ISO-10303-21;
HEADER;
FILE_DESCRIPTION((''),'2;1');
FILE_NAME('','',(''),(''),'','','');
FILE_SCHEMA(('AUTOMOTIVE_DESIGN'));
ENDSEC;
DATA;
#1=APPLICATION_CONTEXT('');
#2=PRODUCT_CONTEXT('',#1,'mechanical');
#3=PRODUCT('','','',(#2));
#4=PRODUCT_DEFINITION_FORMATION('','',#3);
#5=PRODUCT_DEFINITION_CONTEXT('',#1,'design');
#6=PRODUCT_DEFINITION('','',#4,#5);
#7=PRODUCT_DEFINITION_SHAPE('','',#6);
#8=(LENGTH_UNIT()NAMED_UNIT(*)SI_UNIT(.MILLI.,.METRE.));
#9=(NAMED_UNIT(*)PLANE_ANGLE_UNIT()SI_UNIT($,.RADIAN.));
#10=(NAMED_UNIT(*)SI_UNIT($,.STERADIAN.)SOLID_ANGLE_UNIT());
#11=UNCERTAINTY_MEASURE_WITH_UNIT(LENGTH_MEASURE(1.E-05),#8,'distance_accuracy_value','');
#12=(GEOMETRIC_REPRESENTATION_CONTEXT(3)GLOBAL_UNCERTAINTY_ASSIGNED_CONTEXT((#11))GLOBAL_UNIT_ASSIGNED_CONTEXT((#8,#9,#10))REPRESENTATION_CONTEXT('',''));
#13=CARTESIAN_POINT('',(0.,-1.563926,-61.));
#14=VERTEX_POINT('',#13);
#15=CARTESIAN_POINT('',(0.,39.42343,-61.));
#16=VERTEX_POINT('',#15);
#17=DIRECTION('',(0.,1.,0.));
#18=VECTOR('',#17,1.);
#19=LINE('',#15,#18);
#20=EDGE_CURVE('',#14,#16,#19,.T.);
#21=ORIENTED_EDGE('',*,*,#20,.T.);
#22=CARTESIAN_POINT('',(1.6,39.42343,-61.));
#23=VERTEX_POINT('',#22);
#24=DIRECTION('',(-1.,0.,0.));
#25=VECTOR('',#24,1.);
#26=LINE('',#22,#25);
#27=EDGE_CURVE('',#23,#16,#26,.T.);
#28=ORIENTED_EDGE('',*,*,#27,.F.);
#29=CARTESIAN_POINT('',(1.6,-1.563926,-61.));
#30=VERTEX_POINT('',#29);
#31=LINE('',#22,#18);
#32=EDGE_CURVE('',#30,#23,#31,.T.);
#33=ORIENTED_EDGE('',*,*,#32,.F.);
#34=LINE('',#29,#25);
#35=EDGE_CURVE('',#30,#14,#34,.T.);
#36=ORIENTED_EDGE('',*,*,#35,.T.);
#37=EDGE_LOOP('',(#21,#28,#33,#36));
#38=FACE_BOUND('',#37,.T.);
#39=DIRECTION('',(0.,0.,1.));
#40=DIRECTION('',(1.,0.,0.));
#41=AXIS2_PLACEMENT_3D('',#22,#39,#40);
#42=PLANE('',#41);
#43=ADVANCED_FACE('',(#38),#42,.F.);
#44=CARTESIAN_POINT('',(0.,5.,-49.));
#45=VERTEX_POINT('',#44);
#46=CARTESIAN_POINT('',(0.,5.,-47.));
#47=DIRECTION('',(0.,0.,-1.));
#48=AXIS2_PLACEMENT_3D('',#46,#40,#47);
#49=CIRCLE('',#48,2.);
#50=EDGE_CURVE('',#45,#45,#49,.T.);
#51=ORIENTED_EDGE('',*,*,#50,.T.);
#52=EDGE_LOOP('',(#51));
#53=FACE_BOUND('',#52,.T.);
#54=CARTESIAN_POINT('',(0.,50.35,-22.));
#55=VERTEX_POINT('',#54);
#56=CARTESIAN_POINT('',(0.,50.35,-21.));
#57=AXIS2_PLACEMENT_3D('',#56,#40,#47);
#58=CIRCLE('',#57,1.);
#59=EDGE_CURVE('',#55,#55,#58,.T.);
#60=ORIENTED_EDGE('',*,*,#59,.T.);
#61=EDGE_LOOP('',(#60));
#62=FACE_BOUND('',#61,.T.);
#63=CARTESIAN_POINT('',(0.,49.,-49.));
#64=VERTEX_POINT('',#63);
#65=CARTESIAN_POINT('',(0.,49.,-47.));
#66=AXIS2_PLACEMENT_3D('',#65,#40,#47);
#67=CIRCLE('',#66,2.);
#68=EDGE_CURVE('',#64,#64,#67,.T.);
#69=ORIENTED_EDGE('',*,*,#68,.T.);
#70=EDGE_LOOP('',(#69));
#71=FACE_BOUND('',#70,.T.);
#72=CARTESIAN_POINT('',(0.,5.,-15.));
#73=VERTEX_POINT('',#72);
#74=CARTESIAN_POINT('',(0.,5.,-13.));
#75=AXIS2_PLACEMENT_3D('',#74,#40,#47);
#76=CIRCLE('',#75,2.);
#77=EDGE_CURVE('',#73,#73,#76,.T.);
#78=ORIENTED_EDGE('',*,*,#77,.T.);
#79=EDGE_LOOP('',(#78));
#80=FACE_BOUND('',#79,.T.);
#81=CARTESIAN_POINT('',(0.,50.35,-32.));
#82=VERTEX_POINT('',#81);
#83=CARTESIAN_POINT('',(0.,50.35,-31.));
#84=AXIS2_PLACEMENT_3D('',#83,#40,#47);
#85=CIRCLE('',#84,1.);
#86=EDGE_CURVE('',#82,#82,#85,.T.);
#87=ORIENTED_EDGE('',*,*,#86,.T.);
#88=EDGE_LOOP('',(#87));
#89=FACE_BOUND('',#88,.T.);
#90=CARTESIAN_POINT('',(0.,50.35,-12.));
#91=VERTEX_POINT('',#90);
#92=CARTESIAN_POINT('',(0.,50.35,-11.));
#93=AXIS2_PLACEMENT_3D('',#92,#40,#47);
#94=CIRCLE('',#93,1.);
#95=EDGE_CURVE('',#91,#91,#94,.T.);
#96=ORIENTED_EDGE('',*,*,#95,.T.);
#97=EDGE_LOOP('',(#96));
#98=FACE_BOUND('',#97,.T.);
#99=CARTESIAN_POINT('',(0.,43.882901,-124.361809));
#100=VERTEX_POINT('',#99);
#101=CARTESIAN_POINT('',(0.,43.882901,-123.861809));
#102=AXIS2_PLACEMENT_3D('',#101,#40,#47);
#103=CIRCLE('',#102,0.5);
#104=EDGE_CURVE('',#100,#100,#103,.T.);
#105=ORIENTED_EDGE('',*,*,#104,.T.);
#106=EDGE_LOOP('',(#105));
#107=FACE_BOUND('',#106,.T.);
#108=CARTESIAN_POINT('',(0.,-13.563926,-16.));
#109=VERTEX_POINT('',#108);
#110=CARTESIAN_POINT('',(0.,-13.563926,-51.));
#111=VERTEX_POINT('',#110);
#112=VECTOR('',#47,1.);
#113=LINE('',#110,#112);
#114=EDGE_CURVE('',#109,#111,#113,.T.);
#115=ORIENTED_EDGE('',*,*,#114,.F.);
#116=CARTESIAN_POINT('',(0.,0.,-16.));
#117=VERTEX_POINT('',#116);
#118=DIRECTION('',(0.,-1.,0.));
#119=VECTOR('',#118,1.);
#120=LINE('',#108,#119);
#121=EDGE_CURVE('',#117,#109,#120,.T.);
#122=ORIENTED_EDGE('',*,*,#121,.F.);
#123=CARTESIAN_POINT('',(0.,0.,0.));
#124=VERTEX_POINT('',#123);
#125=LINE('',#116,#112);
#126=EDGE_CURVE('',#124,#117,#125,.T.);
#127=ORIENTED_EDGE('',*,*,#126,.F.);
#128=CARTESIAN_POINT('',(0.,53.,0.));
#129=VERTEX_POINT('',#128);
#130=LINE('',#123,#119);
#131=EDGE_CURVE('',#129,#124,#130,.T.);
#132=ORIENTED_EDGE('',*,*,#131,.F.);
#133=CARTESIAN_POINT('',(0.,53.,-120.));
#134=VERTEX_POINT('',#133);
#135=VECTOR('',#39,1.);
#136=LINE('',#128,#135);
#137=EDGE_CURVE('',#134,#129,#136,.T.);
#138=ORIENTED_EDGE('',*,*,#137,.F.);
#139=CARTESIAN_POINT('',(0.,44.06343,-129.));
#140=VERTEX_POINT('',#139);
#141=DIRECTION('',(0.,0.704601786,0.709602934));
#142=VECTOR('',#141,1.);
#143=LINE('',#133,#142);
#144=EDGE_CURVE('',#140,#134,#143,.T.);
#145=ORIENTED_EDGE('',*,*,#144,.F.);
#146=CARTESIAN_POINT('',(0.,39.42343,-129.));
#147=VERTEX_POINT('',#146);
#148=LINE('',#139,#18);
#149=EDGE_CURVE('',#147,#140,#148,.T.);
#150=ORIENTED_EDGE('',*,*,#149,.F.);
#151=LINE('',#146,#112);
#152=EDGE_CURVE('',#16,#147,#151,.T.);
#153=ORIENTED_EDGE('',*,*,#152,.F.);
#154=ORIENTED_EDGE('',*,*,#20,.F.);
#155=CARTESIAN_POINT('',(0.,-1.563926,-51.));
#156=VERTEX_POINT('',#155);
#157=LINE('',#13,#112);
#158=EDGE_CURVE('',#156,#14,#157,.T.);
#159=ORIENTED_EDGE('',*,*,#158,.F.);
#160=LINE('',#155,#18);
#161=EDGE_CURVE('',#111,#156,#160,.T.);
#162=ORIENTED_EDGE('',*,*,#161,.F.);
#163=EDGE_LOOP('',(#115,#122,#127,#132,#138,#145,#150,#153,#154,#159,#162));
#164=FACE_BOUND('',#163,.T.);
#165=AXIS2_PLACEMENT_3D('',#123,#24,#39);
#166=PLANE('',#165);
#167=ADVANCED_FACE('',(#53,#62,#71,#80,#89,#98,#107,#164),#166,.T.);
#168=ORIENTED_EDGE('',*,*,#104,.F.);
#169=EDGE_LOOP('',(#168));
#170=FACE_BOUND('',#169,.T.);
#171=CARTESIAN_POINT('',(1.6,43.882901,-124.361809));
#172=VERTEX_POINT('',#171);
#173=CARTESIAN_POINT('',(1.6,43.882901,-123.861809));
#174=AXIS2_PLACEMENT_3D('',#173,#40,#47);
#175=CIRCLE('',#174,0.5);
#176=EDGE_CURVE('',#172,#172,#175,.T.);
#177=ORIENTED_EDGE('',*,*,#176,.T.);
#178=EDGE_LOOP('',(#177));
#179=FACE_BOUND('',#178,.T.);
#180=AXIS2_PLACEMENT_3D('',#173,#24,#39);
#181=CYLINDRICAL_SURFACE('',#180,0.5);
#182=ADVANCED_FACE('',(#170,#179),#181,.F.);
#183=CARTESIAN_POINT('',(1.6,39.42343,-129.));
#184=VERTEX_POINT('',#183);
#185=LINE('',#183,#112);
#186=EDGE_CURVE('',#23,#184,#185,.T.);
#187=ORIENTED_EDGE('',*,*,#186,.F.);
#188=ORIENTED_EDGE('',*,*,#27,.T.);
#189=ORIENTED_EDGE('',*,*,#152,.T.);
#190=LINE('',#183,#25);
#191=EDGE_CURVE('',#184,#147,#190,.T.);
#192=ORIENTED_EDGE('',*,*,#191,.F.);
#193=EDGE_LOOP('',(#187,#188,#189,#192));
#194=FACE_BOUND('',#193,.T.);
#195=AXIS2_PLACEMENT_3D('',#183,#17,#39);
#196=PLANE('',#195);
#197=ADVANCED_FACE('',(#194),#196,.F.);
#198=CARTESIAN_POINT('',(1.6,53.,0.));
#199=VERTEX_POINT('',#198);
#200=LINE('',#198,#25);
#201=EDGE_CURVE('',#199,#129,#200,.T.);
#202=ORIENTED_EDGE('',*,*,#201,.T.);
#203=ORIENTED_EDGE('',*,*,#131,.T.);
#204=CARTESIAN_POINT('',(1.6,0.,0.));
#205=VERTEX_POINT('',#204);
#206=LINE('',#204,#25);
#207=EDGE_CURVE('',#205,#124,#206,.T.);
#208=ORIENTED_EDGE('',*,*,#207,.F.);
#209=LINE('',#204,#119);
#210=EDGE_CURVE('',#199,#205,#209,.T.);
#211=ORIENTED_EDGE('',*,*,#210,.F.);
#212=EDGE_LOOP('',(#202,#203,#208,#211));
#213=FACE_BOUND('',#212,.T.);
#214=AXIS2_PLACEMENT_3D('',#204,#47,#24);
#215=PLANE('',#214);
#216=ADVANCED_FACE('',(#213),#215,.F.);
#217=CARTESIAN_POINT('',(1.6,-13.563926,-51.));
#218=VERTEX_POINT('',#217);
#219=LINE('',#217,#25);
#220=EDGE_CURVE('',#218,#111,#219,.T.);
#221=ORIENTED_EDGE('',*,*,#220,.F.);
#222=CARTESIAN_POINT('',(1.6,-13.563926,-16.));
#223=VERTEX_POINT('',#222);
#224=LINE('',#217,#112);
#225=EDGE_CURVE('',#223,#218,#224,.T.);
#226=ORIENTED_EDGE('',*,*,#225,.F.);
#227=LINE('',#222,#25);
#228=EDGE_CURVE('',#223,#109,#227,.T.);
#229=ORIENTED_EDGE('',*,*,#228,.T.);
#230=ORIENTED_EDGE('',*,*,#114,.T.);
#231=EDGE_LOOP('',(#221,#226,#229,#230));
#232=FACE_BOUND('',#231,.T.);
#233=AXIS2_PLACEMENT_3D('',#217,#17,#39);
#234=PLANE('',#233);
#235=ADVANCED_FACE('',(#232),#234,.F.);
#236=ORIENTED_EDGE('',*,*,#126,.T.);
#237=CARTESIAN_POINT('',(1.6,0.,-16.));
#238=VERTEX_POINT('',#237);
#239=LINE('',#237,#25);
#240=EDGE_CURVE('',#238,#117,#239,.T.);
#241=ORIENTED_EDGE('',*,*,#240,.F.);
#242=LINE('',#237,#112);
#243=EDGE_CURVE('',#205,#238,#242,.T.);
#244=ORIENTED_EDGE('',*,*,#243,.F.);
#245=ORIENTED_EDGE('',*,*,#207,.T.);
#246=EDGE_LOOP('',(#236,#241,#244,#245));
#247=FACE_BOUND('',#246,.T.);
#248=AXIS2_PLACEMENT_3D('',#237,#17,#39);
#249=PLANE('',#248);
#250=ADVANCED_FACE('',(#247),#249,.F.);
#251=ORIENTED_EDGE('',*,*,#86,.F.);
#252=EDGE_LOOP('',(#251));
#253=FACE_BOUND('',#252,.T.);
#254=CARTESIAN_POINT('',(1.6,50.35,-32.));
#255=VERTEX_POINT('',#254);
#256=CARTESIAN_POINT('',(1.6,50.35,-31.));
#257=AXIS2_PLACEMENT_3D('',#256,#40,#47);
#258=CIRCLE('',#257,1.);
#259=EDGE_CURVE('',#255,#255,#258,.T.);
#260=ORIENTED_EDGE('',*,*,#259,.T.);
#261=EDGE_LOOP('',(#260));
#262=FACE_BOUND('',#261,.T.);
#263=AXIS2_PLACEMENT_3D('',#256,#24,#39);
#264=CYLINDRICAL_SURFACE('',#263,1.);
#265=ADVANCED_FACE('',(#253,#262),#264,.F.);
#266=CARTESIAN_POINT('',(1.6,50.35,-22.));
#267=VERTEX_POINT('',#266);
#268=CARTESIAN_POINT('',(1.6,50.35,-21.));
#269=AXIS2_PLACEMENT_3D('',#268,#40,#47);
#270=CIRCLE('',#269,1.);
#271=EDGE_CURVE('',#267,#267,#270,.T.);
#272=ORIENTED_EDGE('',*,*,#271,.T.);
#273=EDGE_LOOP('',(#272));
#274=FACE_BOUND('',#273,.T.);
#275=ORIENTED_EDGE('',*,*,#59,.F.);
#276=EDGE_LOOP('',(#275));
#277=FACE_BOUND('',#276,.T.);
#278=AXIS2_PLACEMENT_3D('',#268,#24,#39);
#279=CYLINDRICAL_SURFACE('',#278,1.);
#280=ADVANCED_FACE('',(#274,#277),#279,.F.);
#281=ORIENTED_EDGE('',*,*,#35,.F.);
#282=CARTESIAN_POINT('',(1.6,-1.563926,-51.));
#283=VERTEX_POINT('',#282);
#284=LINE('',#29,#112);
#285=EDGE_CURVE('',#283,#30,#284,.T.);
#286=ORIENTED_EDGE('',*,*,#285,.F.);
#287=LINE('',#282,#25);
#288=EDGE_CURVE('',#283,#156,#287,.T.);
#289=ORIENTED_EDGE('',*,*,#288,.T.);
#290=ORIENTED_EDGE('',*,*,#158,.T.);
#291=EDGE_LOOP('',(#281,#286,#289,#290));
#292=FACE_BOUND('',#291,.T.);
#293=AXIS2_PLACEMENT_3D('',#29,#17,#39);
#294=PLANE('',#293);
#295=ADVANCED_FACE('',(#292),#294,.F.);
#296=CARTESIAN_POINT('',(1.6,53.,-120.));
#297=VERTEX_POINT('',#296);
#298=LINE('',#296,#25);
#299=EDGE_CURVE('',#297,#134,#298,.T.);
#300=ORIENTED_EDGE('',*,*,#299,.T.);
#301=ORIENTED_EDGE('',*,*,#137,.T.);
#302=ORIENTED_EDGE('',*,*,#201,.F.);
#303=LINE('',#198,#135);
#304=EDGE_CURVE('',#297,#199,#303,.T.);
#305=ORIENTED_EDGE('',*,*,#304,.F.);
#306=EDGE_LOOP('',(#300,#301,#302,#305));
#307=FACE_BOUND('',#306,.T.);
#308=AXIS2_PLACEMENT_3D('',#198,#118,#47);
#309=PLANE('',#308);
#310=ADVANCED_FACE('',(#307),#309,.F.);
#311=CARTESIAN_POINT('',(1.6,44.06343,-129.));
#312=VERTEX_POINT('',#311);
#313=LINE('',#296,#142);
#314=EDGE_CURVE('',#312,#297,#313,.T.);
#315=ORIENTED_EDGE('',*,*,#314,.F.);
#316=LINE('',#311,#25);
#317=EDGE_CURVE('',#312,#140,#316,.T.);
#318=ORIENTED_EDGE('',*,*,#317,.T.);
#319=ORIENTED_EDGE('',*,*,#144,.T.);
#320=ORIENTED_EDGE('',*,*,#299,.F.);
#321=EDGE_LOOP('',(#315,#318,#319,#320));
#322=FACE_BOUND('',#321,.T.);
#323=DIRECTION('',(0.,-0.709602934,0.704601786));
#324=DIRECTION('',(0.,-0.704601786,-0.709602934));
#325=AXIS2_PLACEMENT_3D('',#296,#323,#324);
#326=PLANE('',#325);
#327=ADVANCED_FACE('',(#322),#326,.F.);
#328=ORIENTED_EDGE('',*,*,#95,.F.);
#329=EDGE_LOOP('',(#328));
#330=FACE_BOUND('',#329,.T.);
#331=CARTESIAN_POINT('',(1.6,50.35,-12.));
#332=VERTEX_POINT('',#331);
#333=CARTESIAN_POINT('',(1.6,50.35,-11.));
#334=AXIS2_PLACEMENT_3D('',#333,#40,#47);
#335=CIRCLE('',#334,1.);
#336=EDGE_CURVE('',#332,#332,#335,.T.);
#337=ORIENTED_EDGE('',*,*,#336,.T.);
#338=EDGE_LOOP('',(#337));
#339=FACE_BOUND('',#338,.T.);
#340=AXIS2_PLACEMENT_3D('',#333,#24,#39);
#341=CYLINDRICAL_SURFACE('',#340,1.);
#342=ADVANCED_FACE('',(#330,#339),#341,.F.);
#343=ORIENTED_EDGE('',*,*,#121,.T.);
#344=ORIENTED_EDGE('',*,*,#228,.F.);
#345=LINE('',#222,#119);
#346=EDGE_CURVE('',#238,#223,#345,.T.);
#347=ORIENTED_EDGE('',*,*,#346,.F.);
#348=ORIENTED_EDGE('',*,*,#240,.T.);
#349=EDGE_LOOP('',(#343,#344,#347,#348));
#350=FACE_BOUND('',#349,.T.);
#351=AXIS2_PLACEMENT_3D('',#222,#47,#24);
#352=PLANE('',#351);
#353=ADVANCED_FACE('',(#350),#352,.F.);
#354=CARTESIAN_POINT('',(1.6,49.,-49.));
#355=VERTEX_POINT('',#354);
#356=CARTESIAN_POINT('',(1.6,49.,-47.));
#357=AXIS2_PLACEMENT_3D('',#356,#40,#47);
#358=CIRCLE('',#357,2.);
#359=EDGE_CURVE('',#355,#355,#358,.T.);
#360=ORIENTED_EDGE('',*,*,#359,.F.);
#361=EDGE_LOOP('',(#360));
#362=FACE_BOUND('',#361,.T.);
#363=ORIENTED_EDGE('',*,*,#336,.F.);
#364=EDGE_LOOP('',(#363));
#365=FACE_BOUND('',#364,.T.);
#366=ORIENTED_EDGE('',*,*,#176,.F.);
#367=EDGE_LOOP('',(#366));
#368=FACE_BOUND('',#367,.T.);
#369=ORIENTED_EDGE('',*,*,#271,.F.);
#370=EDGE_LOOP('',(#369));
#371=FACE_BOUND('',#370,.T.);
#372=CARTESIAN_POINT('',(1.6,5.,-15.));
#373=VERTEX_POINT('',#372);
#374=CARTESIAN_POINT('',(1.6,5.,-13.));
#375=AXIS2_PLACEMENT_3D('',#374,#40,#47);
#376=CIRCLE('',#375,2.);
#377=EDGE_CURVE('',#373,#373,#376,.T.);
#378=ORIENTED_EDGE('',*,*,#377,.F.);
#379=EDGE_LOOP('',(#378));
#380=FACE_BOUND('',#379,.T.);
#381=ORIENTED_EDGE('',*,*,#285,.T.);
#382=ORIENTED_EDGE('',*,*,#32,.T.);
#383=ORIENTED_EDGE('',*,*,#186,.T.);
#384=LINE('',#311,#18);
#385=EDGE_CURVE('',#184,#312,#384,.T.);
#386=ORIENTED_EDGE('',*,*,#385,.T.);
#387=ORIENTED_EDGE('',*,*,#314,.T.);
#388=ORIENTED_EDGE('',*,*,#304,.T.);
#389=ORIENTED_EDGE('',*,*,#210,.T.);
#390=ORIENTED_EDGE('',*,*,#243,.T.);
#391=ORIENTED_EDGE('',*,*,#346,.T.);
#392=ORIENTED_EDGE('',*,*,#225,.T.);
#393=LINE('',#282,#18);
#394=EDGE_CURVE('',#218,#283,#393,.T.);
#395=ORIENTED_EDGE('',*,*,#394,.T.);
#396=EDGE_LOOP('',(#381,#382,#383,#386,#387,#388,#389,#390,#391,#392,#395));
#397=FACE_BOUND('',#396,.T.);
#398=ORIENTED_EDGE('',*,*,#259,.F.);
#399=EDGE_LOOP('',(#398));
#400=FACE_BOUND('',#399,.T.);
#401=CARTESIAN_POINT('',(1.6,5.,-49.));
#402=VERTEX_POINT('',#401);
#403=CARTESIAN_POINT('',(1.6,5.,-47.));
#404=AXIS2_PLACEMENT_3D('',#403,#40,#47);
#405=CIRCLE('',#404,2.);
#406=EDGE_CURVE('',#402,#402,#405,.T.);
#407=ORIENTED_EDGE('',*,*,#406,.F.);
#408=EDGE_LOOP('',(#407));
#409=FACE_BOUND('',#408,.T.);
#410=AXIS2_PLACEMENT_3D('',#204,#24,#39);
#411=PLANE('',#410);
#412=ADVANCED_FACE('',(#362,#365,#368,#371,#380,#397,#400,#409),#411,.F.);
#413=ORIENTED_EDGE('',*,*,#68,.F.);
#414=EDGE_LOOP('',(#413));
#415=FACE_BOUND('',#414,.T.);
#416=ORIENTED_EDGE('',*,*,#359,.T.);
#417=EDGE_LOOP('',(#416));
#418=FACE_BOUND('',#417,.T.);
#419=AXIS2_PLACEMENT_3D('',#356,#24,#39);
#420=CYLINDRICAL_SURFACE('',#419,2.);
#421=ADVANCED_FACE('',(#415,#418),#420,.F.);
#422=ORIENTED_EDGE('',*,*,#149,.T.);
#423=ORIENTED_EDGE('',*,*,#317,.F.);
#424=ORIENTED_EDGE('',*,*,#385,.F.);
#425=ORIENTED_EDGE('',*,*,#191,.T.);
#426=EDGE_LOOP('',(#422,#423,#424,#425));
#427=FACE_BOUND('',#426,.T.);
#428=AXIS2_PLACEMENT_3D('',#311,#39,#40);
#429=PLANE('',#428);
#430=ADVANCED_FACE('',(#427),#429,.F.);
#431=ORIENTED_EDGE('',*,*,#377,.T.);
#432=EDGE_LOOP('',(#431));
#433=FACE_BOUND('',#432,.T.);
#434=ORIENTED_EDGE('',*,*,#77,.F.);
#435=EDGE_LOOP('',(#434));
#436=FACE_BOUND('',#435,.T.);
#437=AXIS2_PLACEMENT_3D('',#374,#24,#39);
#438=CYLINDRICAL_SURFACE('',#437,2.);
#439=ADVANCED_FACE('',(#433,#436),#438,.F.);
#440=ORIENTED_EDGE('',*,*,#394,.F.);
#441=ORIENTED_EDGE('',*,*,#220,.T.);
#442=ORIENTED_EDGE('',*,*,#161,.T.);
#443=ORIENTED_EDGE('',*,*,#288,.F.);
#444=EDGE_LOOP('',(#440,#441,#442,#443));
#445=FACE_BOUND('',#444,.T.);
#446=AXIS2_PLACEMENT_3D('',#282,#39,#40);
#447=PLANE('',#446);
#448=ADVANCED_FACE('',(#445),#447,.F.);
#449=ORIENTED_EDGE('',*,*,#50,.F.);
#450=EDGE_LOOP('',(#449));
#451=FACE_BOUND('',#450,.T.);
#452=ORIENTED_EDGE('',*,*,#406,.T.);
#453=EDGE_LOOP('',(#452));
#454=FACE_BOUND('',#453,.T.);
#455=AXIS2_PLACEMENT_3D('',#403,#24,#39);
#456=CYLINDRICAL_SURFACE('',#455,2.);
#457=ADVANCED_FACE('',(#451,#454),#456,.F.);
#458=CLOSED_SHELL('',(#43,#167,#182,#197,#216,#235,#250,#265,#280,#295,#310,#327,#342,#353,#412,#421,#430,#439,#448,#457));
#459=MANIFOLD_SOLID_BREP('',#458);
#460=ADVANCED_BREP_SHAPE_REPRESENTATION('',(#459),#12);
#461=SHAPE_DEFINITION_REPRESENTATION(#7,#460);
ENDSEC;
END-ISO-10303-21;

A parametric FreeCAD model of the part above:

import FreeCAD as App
import Part
import Sketcher


def add_polygon(sketch, points):
    """Adds a closed chain of lines whose ends are joined by coincident constraints."""
    first, n = sketch.GeometryCount, len(points)
    for a, b in zip(points, points[1:] + points[:1]):
        sketch.addGeometry(Part.LineSegment(App.Vector(*a, 0), App.Vector(*b, 0)), False)
    for i in range(n):
        sketch.addConstraint(Sketcher.Constraint("Coincident", first + i, 2, first + (i + 1) % n, 1))

doc = App.newDocument("Part")
body = doc.addObject("PartDesign::Body", "Body")

# Sketch on YZ plane
sketch1 = doc.addObject("Sketcher::SketchObject", "Sketch")
body.addObject(sketch1)
sketch1.AttachmentSupport = (doc.YZ_Plane, [""])
sketch1.MapMode = "FlatFace"
add_polygon(sketch1, [(53, 0), (0, 0), (0, -16), (-13.563926, -16), (-13.563926, -51), (-1.563926, -51), (-1.563926, -61), (39.42343, -61), (39.42343, -129), (44.06343, -129), (53, -120)])  # lines 0-10
sketch1.addGeometry(Part.Circle(App.Vector(5, -47, 0), App.Vector(0, 0, 1), 2), False)  # 11
sketch1.addGeometry(Part.Circle(App.Vector(5, -13, 0), App.Vector(0, 0, 1), 2), False)  # 12
sketch1.addGeometry(Part.Circle(App.Vector(43.882901, -123.861809, 0), App.Vector(0, 0, 1), 0.5), False)  # 13
sketch1.addGeometry(Part.Circle(App.Vector(49, -47, 0), App.Vector(0, 0, 1), 2), False)  # 14
sketch1.addGeometry(Part.Circle(App.Vector(50.35, -31, 0), App.Vector(0, 0, 1), 1), False)  # 15
sketch1.addGeometry(Part.Circle(App.Vector(50.35, -21, 0), App.Vector(0, 0, 1), 1), False)  # 16
sketch1.addGeometry(Part.Circle(App.Vector(50.35, -11, 0), App.Vector(0, 0, 1), 1), False)  # 17
sketch1.addConstraint(Sketcher.Constraint("Horizontal", 0))
sketch1.addConstraint(Sketcher.Constraint("Vertical", 1))
sketch1.addConstraint(Sketcher.Constraint("Horizontal", 2))
sketch1.addConstraint(Sketcher.Constraint("Vertical", 3))
sketch1.addConstraint(Sketcher.Constraint("Horizontal", 4))
sketch1.addConstraint(Sketcher.Constraint("Vertical", 5))
sketch1.addConstraint(Sketcher.Constraint("Horizontal", 6))
sketch1.addConstraint(Sketcher.Constraint("Vertical", 7))
sketch1.addConstraint(Sketcher.Constraint("Horizontal", 8))
sketch1.addConstraint(Sketcher.Constraint("Vertical", 10))
sketch1.addConstraint(Sketcher.Constraint("Coincident", 0, 2, -1, 1))
sketch1.addConstraint(Sketcher.Constraint("Equal", 11, 12))
sketch1.addConstraint(Sketcher.Constraint("Equal", 12, 14))
sketch1.addConstraint(Sketcher.Constraint("Equal", 15, 16))
sketch1.addConstraint(Sketcher.Constraint("Equal", 16, 17))
sketch1.addConstraint(Sketcher.Constraint("Horizontal", 11, 3, 14, 3))
sketch1.addConstraint(Sketcher.Constraint("Vertical", 11, 3, 12, 3))
sketch1.addConstraint(Sketcher.Constraint("Vertical", 15, 3, 16, 3))
sketch1.addConstraint(Sketcher.Constraint("Vertical", 16, 3, 17, 3))
sketch1.addConstraint(Sketcher.Constraint("Diameter", 11, 4.0))
sketch1.addConstraint(Sketcher.Constraint("Diameter", 13, 1.0))
sketch1.addConstraint(Sketcher.Constraint("Diameter", 15, 2.0))
sketch1.addConstraint(Sketcher.Constraint("DistanceX", 0, 2, 0, 1, 53.0))
sketch1.addConstraint(Sketcher.Constraint("DistanceX", 4, 1, 4, 2, 12.0))
sketch1.addConstraint(Sketcher.Constraint("DistanceY", 1, 2, 1, 1, 16.0))
sketch1.addConstraint(Sketcher.Constraint("DistanceY", 3, 2, 3, 1, 35.0))
sketch1.addConstraint(Sketcher.Constraint("DistanceY", 5, 2, 5, 1, 10.0))
sketch1.addConstraint(Sketcher.Constraint("DistanceY", 7, 2, 7, 1, 68.0))
sketch1.addConstraint(Sketcher.Constraint("DistanceY", 10, 1, 10, 2, 120.0))
sketch1.addConstraint(Sketcher.Constraint("DistanceX", -1, 1, 11, 3, 5.0))
sketch1.addConstraint(Sketcher.Constraint("DistanceY", 11, 3, -1, 1, 47.0))
sketch1.addConstraint(Sketcher.Constraint("DistanceY", 12, 3, -1, 1, 13.0))
sketch1.addConstraint(Sketcher.Constraint("DistanceX", -1, 1, 14, 3, 49.0))
sketch1.addConstraint(Sketcher.Constraint("DistanceY", 15, 3, -1, 1, 31.0))
sketch1.addConstraint(Sketcher.Constraint("DistanceY", 16, 3, -1, 1, 21.0))
sketch1.addConstraint(Sketcher.Constraint("DistanceY", 17, 3, -1, 1, 11.0))
sketch1.addConstraint(Sketcher.Constraint("DistanceX", 8, 1, 8, 2, 4.64))
sketch1.addConstraint(Sketcher.Constraint("DistanceX", -1, 1, 15, 3, 50.35))
sketch1.addConstraint(Sketcher.Constraint("DistanceX", -1, 1, 13, 3, 43.882901))
sketch1.addConstraint(Sketcher.Constraint("Distance", 9, 12.683149))
sketch1.addConstraint(Sketcher.Constraint("DistanceX", 2, 2, 2, 1, 13.563926))
sketch1.addConstraint(Sketcher.Constraint("DistanceY", 13, 3, -1, 1, 123.861809))
pad1 = doc.addObject("PartDesign::Pad", "Pad")
body.addObject(pad1)
pad1.Profile = sketch1
pad1.Length = 1.6

doc.recompute()
